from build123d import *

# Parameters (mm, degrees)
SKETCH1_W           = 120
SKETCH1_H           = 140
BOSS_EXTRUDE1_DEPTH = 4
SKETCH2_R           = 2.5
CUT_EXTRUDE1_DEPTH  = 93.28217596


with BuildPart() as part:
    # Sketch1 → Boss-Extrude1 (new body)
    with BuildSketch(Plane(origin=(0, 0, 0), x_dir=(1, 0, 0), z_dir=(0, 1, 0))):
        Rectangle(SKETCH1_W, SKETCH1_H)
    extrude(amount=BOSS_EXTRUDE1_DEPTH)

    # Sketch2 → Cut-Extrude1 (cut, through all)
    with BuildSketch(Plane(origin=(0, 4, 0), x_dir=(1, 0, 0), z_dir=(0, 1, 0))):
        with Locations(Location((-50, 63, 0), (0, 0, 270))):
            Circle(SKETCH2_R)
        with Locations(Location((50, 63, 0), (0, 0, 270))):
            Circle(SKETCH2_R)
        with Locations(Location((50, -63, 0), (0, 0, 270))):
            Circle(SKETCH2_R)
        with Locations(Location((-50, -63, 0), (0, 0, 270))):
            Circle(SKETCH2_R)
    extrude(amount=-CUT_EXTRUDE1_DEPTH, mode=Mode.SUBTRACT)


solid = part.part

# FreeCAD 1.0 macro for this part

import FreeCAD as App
import Part
import Sketcher
from FreeCAD import Vector


def add_polygon(sketch, points):
    """Adds a closed chain of lines whose ends are joined by coincident constraints."""
    first, n = sketch.GeometryCount, len(points)
    for a, b in zip(points, points[1:] + points[:1]):
        sketch.addGeometry(Part.LineSegment(App.Vector(*a, 0), App.Vector(*b, 0)), False)
    for i in range(n):
        sketch.addConstraint(Sketcher.Constraint("Coincident", first + i, 2, first + (i + 1) % n, 1))

doc = App.newDocument("Part")
params = doc.addObject("Spreadsheet::Sheet", "Params")
for row, (alias, value) in enumerate([
    ("sketch1_width", "120 mm"),
    ("sketch1_height", "140 mm"),
    ("pad1_length", "4 mm"),
    ("sketch2_diameter", "5 mm"),
], start=1):
    params.set(f"A{row}", alias)
    params.set(f"B{row}", "=" + value)
    params.setAlias(f"B{row}", alias)

body = doc.addObject("PartDesign::Body", "Body")

# Sketch on XZ plane
sketch1 = doc.addObject("Sketcher::SketchObject", "Sketch")
body.addObject(sketch1)
sketch1.AttachmentSupport = (doc.XZ_Plane, [""])
sketch1.MapMode = "FlatFace"
add_polygon(sketch1, [(-60, -70), (-60, 70), (60, 70), (60, -70)])  # lines 0-3
sketch1.addConstraint([
    Sketcher.Constraint("Vertical", 0),
    Sketcher.Constraint("Horizontal", 1),
    Sketcher.Constraint("Vertical", 2),
    Sketcher.Constraint("Horizontal", 3),
    Sketcher.Constraint("Symmetric", 0, 2, 2, 2, -1, 1),
    Sketcher.Constraint("DistanceX", 1, 1, 1, 2, 120.0),
    Sketcher.Constraint("DistanceY", 0, 1, 0, 2, 140.0),
])
sketch1.setExpression("Constraints[9]", "Params.sketch1_width")
sketch1.setExpression("Constraints[10]", "Params.sketch1_height")
pad1 = doc.addObject("PartDesign::Pad", "Pad")
body.addObject(pad1)
pad1.Profile = sketch1
pad1.setExpression("Length", "Params.pad1_length")
pad1.Reversed = True

# Sketch on XZ plane
sketch2 = doc.addObject("Sketcher::SketchObject", "Sketch001")
body.addObject(sketch2)
sketch2.AttachmentSupport = (doc.XZ_Plane, [""])
sketch2.MapMode = "FlatFace"
sketch2.AttachmentOffset = App.Placement(Vector(0, 0, -4), App.Rotation())
sketch2.addGeometry([
    Part.Circle(Vector(-50, -63, 0), Vector(0, 0, 1), 2.5),
    Part.Circle(Vector(50, -63, 0), Vector(0, 0, 1), 2.5),
    Part.Circle(Vector(50, 63, 0), Vector(0, 0, 1), 2.5),
    Part.Circle(Vector(-50, 63, 0), Vector(0, 0, 1), 2.5),
], False)
sketch2.addConstraint([
    Sketcher.Constraint("Equal", 0, 1),
    Sketcher.Constraint("Equal", 1, 2),
    Sketcher.Constraint("Equal", 2, 3),
    Sketcher.Constraint("Symmetric", 0, 3, 2, 3, -1, 1),
    Sketcher.Constraint("Symmetric", 1, 3, 3, 3, -1, 1),
    Sketcher.Constraint("Symmetric", 0, 3, 1, 3, -2),
    Sketcher.Constraint("Diameter", 0, 5.0),
    Sketcher.Constraint("DistanceX", 0, 3, -1, 1, 50.0),
    Sketcher.Constraint("DistanceY", 0, 3, -1, 1, 63.0),
])
sketch2.setExpression("Constraints[6]", "Params.sketch2_diameter")
pocket1 = doc.addObject("PartDesign::Pocket", "Pocket")
body.addObject(pocket1)
pocket1.Profile = sketch2
pocket1.Type = "ThroughAll"
pocket1.Reversed = True

doc.recompute()
